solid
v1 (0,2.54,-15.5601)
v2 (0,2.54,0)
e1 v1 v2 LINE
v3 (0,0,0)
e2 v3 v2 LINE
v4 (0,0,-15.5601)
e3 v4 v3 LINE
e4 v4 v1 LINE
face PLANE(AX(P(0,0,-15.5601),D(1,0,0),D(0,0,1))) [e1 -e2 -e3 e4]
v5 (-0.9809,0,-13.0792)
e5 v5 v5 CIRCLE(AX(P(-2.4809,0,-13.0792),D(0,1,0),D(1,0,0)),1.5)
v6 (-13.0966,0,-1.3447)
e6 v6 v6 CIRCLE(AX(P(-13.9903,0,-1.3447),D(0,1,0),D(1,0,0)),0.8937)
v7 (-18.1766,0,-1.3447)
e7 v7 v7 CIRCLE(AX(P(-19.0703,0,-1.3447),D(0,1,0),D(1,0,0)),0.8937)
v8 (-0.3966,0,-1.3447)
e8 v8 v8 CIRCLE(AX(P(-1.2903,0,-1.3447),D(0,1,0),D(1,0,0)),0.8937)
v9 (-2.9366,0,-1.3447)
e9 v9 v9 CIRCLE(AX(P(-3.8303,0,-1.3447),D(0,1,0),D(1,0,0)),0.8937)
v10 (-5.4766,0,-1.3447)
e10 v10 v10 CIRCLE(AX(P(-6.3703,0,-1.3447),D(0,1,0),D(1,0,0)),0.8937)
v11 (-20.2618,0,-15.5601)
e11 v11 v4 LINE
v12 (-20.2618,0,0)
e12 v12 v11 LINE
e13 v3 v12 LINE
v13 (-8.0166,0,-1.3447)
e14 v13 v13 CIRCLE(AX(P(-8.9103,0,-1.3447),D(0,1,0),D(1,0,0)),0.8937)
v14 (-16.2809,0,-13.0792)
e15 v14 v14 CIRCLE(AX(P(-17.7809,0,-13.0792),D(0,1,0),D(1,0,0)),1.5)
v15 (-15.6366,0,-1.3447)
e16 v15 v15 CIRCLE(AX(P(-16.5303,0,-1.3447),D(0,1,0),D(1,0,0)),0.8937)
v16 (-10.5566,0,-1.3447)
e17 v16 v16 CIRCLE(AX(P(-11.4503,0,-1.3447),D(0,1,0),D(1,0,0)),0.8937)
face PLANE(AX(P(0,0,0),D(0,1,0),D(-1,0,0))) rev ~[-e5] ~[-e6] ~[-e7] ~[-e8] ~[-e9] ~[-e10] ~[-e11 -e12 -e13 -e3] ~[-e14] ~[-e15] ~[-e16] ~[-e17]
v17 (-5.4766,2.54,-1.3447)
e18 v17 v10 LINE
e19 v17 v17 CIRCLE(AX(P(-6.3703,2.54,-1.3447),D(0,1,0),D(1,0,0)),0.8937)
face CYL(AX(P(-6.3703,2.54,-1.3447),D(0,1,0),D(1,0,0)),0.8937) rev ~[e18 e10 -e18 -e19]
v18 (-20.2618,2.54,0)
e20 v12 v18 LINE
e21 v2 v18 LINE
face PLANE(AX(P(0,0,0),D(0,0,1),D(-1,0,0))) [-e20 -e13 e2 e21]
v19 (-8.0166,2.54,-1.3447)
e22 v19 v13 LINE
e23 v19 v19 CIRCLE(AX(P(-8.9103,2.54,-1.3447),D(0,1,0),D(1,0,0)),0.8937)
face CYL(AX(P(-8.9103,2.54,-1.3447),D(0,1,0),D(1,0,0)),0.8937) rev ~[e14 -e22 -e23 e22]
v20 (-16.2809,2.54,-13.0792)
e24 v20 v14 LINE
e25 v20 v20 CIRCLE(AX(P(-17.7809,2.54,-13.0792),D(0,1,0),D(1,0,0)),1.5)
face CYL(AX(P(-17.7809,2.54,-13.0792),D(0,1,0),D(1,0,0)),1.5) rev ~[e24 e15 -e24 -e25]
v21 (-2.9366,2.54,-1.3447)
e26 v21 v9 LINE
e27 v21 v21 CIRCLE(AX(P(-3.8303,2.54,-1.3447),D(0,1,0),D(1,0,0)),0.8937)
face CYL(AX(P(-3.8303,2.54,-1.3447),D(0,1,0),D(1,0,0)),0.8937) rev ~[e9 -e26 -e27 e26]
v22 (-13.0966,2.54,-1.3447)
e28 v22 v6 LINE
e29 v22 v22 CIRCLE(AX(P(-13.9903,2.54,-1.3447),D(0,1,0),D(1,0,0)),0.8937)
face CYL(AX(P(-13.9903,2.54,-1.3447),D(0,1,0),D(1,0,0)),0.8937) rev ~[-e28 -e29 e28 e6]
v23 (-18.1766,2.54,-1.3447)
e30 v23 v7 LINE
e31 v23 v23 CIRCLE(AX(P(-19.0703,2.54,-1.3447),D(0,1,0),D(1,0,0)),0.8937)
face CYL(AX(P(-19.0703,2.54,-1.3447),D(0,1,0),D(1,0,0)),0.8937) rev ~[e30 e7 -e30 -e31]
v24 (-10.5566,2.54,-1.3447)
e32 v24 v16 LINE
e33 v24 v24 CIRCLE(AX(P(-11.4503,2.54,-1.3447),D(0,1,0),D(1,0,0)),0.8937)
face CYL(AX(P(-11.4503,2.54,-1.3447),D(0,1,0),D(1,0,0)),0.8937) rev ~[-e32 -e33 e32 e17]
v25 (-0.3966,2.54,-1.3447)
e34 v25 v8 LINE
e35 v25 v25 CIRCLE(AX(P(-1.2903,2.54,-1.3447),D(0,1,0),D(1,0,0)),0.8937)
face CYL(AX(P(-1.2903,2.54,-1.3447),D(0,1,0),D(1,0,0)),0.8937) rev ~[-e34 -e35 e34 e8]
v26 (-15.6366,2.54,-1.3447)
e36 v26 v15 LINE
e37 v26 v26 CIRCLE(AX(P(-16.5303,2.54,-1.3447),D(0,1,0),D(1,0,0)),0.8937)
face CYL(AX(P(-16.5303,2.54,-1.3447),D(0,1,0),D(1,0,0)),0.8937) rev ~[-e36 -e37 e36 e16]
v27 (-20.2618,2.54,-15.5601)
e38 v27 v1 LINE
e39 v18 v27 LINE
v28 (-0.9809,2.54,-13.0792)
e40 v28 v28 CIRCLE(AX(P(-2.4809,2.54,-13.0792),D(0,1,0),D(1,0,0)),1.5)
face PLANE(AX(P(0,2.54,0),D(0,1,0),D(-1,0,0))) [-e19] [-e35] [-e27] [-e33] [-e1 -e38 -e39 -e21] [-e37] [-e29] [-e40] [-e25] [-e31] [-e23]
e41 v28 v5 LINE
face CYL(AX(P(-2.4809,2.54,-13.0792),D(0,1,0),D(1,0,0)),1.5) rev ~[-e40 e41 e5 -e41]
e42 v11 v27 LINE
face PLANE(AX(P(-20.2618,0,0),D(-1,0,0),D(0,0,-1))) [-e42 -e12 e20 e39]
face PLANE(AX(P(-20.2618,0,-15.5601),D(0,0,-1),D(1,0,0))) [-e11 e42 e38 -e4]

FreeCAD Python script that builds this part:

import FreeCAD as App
import Part
import Sketcher
Q = App.Units.Quantity


def add_polygon(sketch, points):
    """Adds a closed chain of lines whose ends are joined by coincident constraints."""
    first, n = sketch.GeometryCount, len(points)
    for a, b in zip(points, points[1:] + points[:1]):
        sketch.addGeometry(Part.LineSegment(App.Vector(*a, 0), App.Vector(*b, 0)), False)
    for i in range(n):
        sketch.addConstraint(Sketcher.Constraint("Coincident", first + i, 2, first + (i + 1) % n, 1))

doc = App.newDocument("Part")
body = doc.addObject("PartDesign::Body", "Body")

# Sketch on XZ plane
sketch1 = body.newObject("Sketcher::SketchObject", "Sketch")
sketch1.AttachmentSupport = (doc.getObject("XZ_Plane"), [""])
sketch1.MapMode = "FlatFace"
add_polygon(sketch1, [(-20.2618, 0), (0, 0), (0, -15.5601), (-20.2618, -15.5601)])  # lines 0-3
sketch1.addConstraint(Sketcher.Constraint("Horizontal", 0))
sketch1.addConstraint(Sketcher.Constraint("Vertical", 1))
sketch1.addConstraint(Sketcher.Constraint("Horizontal", 2))
sketch1.addConstraint(Sketcher.Constraint("Vertical", 3))
sketch1.addConstraint(Sketcher.Constraint("Coincident", 0, 2, -1, 1))
sketch1.addConstraint(Sketcher.Constraint("DistanceX", 0, 1, 0, 2, Q("0.7977 in")))
sketch1.addConstraint(Sketcher.Constraint("DistanceY", 1, 2, 1, 1, Q("0.6126 in")))
pad1 = body.newObject("PartDesign::Pad", "Pad")
pad1.Profile = sketch1
pad1.Length = Q("0.1 in")
pad1.Reversed = True

# Sketch on XZ plane
sketch2 = body.newObject("Sketcher::SketchObject", "Sketch001")
sketch2.AttachmentSupport = (doc.getObject("XZ_Plane"), [""])
sketch2.MapMode = "FlatFace"
sketch2.AttachmentOffset = App.Placement(App.Vector(0, 0, -0.1 * 25.4), App.Rotation())
sketch2.addGeometry(Part.Circle(App.Vector(-19.0703, -1.3447, 0), App.Vector(0, 0, 1), 0.8937), False)
sketch2.addGeometry(Part.Circle(App.Vector(-16.5303, -1.3447, 0), App.Vector(0, 0, 1), 0.8937), False)
sketch2.addGeometry(Part.Circle(App.Vector(-13.9903, -1.3447, 0), App.Vector(0, 0, 1), 0.8937), False)
sketch2.addGeometry(Part.Circle(App.Vector(-11.4503, -1.3447, 0), App.Vector(0, 0, 1), 0.8937), False)
sketch2.addGeometry(Part.Circle(App.Vector(-8.9103, -1.3447, 0), App.Vector(0, 0, 1), 0.8937), False)
sketch2.addGeometry(Part.Circle(App.Vector(-6.3703, -1.3447, 0), App.Vector(0, 0, 1), 0.8937), False)
sketch2.addGeometry(Part.Circle(App.Vector(-3.8303, -1.3447, 0), App.Vector(0, 0, 1), 0.8937), False)
sketch2.addGeometry(Part.Circle(App.Vector(-1.2903, -1.3447, 0), App.Vector(0, 0, 1), 0.8937), False)
sketch2.addGeometry(Part.Circle(App.Vector(-17.7809, -13.0792, 0), App.Vector(0, 0, 1), 1.5), False)
sketch2.addGeometry(Part.Circle(App.Vector(-2.4809, -13.0792, 0), App.Vector(0, 0, 1), 1.5), False)
sketch2.addConstraint(Sketcher.Constraint("Equal", 0, 1))
sketch2.addConstraint(Sketcher.Constraint("Equal", 1, 2))
sketch2.addConstraint(Sketcher.Constraint("Equal", 2, 3))
sketch2.addConstraint(Sketcher.Constraint("Equal", 3, 4))
sketch2.addConstraint(Sketcher.Constraint("Equal", 4, 5))
sketch2.addConstraint(Sketcher.Constraint("Equal", 5, 6))
sketch2.addConstraint(Sketcher.Constraint("Equal", 6, 7))
sketch2.addConstraint(Sketcher.Constraint("Equal", 8, 9))
sketch2.addConstraint(Sketcher.Constraint("Horizontal", 0, 3, 1, 3))
sketch2.addConstraint(Sketcher.Constraint("Horizontal", 1, 3, 2, 3))
sketch2.addConstraint(Sketcher.Constraint("Horizontal", 2, 3, 3, 3))
sketch2.addConstraint(Sketcher.Constraint("Horizontal", 3, 3, 4, 3))
sketch2.addConstraint(Sketcher.Constraint("Horizontal", 4, 3, 5, 3))
sketch2.addConstraint(Sketcher.Constraint("Horizontal", 5, 3, 6, 3))
sketch2.addConstraint(Sketcher.Constraint("Horizontal", 6, 3, 7, 3))
sketch2.addConstraint(Sketcher.Constraint("Horizontal", 8, 3, 9, 3))
sketch2.addConstraint(Sketcher.Constraint("Diameter", 8, Q("0.1181 in")))
sketch2.addConstraint(Sketcher.Constraint("DistanceX", 0, 3, 1, 3, Q("0.1 in")))
sketch2.addConstraint(Sketcher.Constraint("DistanceX", 1, 3, 2, 3, Q("0.1 in")))
sketch2.addConstraint(Sketcher.Constraint("DistanceX", 2, 3, 3, 3, Q("0.1 in")))
sketch2.addConstraint(Sketcher.Constraint("DistanceX", 3, 3, 4, 3, Q("0.1 in")))
sketch2.addConstraint(Sketcher.Constraint("DistanceX", 4, 3, 5, 3, Q("0.1 in")))
sketch2.addConstraint(Sketcher.Constraint("DistanceX", 5, 3, 6, 3, Q("0.1 in")))
sketch2.addConstraint(Sketcher.Constraint("DistanceX", 6, 3, 7, 3, Q("0.1 in")))
sketch2.addConstraint(Sketcher.Constraint("Diameter", 0, Q("1.7874 mm")))
sketch2.addConstraint(Sketcher.Constraint("DistanceX", 9, 3, -1, 1, Q("2.481 mm")))
sketch2.addConstraint(Sketcher.Constraint("DistanceY", 8, 3, 1, 3, Q("0.462 in")))
sketch2.addConstraint(Sketcher.Constraint("DistanceX", 9, 3, 7, 3, Q("0.046874 in")))
sketch2.addConstraint(Sketcher.Constraint("DistanceY", 0, 3, -1, 1, Q("1.3447 mm")))
sketch2.addConstraint(Sketcher.Constraint("DistanceX", 8, 3, -1, 1, Q("17.781 mm")))
pocket1 = body.newObject("PartDesign::Pocket", "Pocket")
pocket1.Profile = sketch2
pocket1.Type = "UpToFirst"
pocket1.Reversed = True

doc.recompute()
